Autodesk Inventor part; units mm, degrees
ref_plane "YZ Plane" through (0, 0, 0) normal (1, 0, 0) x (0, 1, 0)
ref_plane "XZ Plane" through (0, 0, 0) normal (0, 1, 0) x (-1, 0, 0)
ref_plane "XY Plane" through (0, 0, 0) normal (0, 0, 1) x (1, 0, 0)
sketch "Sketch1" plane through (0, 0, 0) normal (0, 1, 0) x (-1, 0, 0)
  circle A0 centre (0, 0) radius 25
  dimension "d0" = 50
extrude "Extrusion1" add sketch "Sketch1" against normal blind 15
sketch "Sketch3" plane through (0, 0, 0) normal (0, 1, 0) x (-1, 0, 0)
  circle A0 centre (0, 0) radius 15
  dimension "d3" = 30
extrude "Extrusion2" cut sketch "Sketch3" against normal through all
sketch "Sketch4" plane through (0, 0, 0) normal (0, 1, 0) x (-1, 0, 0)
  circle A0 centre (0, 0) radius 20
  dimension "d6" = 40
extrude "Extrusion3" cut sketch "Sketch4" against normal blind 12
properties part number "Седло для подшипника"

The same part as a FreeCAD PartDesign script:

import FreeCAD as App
import Part
import Sketcher

V = App.Vector

doc = App.newDocument("Part")
body = doc.addObject("PartDesign::Body", "Body")

# Sketch on XZ plane
sketch1 = body.newObject("Sketcher::SketchObject", "Sketch")
sketch1.AttachmentSupport = (doc.getObject("XZ_Plane"), [""])
sketch1.MapMode = "FlatFace"
sketch1.addGeometry(Part.Circle(V(0, 0, 0), V(0, 0, 1), 25), False)
sketch1.addConstraint([
    Sketcher.Constraint("Coincident", 0, 3, -1, 1),
    Sketcher.Constraint("Diameter", 0, 50.0),
])
pad1 = body.newObject("PartDesign::Pad", "Pad")
pad1.Profile = sketch1
pad1.Length = 15

# Sketch on XZ plane
sketch2 = body.newObject("Sketcher::SketchObject", "Sketch001")
sketch2.AttachmentSupport = (doc.getObject("XZ_Plane"), [""])
sketch2.MapMode = "FlatFace"
sketch2.addGeometry(Part.Circle(V(0, 0, 0), V(0, 0, 1), 15), False)
sketch2.addConstraint([
    Sketcher.Constraint("Coincident", 0, 3, -1, 1),
    Sketcher.Constraint("Diameter", 0, 30.0),
])
pocket1 = body.newObject("PartDesign::Pocket", "Pocket")
pocket1.Profile = sketch2
pocket1.Type = "ThroughAll"
pocket1.Reversed = True

# Sketch on XZ plane
sketch3 = body.newObject("Sketcher::SketchObject", "Sketch002")
sketch3.AttachmentSupport = (doc.getObject("XZ_Plane"), [""])
sketch3.MapMode = "FlatFace"
sketch3.addGeometry(Part.Circle(V(0, 0, 0), V(0, 0, 1), 20), False)
sketch3.addConstraint([
    Sketcher.Constraint("Coincident", 0, 3, -1, 1),
    Sketcher.Constraint("Diameter", 0, 40.0),
])
pocket2 = body.newObject("PartDesign::Pocket", "Pocket001")
pocket2.Profile = sketch3
pocket2.Length = 12
pocket2.Reversed = True

doc.recompute()
